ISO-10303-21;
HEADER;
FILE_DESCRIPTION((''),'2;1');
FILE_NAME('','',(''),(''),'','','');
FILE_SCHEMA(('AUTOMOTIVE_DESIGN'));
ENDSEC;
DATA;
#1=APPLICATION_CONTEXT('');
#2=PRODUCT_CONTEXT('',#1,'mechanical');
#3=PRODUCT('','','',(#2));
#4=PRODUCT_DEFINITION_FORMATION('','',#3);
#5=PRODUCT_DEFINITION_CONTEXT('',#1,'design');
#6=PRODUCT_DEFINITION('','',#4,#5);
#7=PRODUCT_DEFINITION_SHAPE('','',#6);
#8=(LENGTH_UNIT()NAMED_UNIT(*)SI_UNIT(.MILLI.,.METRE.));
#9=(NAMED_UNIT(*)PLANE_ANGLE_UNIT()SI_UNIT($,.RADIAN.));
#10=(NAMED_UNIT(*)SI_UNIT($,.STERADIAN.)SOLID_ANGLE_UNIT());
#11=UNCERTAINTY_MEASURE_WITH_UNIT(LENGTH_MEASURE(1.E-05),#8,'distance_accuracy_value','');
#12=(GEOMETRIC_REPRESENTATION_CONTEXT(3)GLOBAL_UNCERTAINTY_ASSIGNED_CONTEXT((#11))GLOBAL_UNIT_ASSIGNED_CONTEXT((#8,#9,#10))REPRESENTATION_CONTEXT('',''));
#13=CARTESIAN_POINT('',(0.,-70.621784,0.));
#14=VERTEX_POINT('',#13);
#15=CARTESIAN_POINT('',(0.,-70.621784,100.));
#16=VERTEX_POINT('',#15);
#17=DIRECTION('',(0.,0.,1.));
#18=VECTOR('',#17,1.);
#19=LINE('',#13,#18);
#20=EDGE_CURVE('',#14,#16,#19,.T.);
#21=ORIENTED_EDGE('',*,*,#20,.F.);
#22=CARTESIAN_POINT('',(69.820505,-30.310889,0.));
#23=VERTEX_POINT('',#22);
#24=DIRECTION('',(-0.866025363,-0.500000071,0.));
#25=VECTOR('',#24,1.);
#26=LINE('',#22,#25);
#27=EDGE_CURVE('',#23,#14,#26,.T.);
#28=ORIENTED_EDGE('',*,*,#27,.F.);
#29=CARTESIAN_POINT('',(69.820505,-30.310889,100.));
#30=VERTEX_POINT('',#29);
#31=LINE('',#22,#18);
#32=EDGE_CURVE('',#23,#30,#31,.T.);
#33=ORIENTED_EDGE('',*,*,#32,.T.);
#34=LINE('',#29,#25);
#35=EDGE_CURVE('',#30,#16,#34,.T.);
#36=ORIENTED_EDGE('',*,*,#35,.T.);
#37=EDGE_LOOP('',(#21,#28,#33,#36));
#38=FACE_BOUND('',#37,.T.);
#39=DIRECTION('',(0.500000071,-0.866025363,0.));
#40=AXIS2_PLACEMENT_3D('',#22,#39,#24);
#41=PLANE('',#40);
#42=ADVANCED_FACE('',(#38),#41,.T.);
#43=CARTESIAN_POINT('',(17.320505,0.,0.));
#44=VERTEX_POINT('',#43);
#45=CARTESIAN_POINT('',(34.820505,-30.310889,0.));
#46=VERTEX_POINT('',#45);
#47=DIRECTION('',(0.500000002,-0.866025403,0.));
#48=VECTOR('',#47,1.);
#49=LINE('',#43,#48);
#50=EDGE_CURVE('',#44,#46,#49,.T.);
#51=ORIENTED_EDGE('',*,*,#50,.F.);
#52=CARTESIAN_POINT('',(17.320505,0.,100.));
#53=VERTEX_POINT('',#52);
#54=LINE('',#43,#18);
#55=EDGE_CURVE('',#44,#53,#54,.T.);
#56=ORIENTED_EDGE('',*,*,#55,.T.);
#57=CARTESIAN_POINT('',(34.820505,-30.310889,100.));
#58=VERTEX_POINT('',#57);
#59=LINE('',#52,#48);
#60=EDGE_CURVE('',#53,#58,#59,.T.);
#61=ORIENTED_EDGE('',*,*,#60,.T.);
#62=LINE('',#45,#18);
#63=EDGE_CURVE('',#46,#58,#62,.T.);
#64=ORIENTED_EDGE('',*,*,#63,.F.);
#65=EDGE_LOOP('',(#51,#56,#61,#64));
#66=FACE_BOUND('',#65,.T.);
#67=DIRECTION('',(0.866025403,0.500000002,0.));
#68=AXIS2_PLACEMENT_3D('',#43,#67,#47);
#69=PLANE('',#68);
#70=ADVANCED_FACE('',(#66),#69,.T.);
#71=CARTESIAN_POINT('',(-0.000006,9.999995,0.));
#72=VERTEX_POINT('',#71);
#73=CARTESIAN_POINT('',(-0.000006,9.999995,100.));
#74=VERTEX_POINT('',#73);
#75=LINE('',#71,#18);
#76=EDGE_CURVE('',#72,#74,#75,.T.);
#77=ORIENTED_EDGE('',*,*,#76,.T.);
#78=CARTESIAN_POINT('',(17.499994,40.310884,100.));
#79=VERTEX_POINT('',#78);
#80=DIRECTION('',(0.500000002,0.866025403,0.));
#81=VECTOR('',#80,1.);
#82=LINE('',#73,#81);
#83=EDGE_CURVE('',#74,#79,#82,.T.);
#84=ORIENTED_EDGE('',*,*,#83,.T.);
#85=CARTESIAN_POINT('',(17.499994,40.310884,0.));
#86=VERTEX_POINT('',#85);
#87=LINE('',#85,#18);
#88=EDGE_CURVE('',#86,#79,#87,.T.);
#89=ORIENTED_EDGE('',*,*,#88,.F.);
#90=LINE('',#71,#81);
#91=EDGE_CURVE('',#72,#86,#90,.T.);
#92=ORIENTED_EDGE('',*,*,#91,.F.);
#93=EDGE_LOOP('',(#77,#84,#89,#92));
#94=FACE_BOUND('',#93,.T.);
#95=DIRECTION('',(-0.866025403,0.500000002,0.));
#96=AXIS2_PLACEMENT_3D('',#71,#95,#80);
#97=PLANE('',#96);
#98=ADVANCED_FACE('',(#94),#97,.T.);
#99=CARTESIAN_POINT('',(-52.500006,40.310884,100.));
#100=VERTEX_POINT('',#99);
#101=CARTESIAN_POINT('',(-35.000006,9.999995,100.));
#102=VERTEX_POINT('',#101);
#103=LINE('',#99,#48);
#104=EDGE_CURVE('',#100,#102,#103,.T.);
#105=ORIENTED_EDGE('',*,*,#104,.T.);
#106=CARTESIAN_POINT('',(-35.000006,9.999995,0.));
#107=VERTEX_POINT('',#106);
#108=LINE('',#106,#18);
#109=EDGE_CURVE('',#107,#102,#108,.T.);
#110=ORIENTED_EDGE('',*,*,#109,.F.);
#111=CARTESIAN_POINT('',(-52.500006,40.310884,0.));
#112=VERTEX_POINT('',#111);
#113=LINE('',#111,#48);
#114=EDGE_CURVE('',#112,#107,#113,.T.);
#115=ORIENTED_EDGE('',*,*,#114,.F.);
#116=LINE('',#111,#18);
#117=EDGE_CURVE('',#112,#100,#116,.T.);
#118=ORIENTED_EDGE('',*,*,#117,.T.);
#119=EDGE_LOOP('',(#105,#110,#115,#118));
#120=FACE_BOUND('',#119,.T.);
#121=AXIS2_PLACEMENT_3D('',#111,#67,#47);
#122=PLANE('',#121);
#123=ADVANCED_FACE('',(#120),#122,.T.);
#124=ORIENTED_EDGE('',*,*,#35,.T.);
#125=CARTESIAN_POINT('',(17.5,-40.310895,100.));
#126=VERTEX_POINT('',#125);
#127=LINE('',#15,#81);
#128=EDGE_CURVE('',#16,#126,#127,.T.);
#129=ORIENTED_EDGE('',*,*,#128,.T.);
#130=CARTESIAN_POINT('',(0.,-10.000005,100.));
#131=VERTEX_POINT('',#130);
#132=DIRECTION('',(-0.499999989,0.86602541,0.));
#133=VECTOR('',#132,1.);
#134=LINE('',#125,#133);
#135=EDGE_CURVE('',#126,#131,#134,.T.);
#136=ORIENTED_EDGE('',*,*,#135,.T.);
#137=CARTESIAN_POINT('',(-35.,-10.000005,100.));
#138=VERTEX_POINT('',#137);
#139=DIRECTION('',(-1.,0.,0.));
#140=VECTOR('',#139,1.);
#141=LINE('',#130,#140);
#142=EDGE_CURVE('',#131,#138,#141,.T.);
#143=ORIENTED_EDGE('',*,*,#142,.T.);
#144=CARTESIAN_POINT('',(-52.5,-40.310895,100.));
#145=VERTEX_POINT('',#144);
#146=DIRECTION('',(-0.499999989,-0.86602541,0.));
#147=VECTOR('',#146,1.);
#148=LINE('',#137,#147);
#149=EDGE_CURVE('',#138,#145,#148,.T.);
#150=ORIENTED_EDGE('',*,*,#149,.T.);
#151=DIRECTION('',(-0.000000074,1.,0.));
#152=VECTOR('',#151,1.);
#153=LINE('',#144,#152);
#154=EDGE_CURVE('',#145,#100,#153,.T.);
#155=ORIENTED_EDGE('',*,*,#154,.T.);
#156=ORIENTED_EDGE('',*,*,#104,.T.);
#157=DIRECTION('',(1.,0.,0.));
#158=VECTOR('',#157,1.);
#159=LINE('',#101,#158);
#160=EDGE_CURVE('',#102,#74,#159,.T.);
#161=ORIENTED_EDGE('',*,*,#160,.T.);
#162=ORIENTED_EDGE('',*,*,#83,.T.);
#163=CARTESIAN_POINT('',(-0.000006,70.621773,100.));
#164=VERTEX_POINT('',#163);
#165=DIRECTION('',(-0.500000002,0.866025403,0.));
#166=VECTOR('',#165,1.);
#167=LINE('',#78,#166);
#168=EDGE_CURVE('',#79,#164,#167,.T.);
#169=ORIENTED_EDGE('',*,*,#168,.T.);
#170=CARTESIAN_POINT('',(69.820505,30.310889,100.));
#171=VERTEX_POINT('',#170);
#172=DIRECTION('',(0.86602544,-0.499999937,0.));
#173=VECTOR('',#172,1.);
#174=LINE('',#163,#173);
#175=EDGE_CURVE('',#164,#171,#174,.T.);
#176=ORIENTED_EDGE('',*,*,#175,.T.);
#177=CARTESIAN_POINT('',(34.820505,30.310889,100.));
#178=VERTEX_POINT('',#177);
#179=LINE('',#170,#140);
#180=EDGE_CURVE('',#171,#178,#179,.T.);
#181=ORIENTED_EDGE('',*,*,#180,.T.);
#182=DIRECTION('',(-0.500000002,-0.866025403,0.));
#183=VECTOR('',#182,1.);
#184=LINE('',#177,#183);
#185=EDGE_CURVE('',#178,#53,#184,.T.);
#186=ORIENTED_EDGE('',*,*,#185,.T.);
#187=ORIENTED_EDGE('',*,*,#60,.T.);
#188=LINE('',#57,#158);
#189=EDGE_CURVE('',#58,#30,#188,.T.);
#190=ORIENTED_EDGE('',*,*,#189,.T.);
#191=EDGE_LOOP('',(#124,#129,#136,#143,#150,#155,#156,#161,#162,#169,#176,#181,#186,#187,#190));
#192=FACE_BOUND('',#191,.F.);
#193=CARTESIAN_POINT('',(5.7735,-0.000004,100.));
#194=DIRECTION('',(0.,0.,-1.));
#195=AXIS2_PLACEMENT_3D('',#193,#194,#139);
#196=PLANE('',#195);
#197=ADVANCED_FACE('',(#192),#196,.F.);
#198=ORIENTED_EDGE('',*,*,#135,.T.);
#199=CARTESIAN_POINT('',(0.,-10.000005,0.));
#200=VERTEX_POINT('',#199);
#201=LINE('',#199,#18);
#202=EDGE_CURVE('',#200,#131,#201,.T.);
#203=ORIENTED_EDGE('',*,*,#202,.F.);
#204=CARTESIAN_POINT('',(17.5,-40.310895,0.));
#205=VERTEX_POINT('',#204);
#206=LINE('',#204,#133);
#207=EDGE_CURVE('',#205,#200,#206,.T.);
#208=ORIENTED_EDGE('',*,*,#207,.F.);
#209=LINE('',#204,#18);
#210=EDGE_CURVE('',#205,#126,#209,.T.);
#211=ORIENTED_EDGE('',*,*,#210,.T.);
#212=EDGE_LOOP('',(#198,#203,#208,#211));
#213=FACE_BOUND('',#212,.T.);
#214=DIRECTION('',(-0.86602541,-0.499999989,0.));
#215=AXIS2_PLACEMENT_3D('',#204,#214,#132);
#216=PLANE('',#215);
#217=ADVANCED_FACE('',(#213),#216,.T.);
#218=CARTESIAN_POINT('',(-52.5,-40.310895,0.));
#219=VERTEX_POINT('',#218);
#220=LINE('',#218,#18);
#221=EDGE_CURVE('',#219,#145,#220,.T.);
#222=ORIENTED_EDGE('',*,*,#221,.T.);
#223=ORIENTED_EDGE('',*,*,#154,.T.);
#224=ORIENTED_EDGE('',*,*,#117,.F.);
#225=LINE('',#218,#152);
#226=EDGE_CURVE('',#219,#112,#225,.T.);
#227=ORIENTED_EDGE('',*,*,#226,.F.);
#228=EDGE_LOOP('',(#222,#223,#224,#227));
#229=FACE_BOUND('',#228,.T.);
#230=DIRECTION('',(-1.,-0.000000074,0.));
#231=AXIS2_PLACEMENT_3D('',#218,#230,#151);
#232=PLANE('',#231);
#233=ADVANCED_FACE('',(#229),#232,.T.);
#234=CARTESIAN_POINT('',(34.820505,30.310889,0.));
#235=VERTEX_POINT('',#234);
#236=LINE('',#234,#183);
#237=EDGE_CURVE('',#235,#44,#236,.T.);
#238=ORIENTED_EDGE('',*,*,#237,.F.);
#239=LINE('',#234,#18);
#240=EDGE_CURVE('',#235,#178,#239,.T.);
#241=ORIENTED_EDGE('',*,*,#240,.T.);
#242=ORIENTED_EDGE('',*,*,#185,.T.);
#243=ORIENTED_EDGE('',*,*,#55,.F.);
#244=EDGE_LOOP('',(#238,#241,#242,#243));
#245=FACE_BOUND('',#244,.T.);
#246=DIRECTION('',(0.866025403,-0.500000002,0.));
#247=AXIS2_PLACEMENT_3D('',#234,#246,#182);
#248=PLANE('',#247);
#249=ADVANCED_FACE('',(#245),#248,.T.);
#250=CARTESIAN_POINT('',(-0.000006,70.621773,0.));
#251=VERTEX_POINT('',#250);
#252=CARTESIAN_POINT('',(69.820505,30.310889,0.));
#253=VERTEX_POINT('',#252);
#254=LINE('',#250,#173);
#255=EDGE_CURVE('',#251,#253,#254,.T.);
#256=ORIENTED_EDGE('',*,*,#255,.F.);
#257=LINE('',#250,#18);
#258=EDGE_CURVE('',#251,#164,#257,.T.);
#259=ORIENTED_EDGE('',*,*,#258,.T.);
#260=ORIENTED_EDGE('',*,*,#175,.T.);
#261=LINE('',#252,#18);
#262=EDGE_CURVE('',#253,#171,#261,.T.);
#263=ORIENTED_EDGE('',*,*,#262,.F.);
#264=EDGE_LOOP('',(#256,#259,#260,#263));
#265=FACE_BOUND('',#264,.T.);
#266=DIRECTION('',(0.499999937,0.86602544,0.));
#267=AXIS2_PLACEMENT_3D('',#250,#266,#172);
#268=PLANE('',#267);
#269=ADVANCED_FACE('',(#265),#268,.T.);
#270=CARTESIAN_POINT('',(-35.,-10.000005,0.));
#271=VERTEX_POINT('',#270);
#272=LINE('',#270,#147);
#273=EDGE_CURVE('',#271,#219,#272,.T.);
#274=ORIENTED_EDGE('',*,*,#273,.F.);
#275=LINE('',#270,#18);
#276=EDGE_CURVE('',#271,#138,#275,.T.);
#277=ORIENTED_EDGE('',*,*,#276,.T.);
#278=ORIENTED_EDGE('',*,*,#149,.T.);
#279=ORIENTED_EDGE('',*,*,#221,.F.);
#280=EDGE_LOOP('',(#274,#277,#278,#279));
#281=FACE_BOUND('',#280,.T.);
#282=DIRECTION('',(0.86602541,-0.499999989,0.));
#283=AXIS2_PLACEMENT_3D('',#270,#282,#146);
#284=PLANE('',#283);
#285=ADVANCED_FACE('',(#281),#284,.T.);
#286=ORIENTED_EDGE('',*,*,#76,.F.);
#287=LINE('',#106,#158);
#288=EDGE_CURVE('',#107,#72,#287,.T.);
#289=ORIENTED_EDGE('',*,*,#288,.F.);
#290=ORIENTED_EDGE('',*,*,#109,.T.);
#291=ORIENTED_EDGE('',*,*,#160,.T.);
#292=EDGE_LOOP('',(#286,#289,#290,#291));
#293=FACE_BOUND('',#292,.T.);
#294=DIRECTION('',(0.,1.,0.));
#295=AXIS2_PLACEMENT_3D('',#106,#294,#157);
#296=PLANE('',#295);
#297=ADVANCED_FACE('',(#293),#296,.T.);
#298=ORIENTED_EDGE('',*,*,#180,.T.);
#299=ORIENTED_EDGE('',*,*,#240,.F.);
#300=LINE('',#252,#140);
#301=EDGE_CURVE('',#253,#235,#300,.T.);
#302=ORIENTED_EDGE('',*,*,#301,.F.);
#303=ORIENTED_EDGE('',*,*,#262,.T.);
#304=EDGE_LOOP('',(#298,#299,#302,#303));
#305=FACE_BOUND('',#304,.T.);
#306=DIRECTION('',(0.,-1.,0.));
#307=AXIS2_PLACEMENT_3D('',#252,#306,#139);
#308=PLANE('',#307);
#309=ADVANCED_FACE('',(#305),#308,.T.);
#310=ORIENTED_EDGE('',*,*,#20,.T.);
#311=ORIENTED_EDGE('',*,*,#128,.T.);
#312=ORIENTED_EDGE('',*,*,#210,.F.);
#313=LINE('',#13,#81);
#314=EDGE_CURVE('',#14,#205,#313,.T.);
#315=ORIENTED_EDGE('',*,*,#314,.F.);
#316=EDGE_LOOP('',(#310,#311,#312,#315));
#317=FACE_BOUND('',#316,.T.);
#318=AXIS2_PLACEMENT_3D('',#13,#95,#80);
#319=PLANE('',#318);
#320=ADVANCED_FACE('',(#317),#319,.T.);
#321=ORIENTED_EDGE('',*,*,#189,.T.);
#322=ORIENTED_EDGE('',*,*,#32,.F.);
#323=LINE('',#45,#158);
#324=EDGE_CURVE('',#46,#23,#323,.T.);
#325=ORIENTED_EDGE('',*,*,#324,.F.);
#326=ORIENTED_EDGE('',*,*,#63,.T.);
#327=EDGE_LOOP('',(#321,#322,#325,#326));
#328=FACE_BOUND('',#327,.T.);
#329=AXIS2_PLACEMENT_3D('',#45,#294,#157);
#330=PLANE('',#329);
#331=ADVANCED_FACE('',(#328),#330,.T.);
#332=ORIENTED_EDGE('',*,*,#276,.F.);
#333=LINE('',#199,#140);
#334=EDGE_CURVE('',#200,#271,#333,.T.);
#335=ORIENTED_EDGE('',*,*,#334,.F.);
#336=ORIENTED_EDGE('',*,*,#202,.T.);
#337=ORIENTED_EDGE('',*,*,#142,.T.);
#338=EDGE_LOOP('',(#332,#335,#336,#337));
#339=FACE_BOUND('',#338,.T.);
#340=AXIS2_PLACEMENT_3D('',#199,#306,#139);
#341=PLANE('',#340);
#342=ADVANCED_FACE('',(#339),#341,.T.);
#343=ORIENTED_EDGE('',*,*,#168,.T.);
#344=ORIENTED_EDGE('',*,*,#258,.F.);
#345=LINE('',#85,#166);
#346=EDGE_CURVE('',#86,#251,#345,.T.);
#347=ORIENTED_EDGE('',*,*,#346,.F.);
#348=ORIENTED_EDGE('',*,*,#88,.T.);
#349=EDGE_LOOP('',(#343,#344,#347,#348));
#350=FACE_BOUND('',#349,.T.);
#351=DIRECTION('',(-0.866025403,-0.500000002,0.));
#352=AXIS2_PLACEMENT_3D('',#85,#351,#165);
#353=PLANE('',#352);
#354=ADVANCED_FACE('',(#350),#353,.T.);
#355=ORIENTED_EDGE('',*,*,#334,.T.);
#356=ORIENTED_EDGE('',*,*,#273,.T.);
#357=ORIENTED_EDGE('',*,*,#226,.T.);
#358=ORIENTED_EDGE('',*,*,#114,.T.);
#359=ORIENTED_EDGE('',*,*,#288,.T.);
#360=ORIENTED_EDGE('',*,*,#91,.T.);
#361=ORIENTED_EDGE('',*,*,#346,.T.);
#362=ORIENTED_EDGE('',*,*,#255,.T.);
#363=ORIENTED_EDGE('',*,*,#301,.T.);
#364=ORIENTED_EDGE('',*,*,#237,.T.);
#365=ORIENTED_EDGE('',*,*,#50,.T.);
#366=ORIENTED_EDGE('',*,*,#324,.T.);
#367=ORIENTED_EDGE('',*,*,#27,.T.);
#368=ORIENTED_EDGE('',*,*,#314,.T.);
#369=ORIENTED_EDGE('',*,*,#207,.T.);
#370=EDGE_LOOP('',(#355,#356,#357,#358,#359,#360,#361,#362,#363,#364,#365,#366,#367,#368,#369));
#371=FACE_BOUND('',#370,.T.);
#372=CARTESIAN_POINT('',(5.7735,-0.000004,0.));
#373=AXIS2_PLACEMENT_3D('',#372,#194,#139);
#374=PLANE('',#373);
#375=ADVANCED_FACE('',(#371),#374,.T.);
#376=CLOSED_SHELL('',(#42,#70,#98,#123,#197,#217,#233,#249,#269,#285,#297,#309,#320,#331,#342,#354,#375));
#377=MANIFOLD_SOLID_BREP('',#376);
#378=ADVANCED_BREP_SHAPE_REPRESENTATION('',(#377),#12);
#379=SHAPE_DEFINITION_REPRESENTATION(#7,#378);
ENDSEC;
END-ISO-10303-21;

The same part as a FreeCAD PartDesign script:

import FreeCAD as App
import Part
import Sketcher
from FreeCAD import Vector
Q = App.Units.Quantity


def add_polygon(sketch, points):
    """Adds a closed chain of lines whose ends are joined by coincident constraints."""
    first, n = sketch.GeometryCount, len(points)
    for a, b in zip(points, points[1:] + points[:1]):
        sketch.addGeometry(Part.LineSegment(App.Vector(*a, 0), App.Vector(*b, 0)), False)
    for i in range(n):
        sketch.addConstraint(Sketcher.Constraint("Coincident", first + i, 2, first + (i + 1) % n, 1))

doc = App.newDocument("Part")
params = doc.addObject("Spreadsheet::Sheet", "Params")
for row, (alias, value) in enumerate([
    ("sketch1_width", "35 mm"),
    ("sketch1_length", "35.000001 mm"),
    ("pad1_length", "100 mm"),
], start=1):
    params.set(f"A{row}", alias)
    params.set(f"B{row}", "=" + value)
    params.setAlias(f"B{row}", alias)

body = doc.addObject("PartDesign::Body", "Body")

# Sketch on XY plane
sketch1 = body.newObject("Sketcher::SketchObject", "Sketch")
sketch1.AttachmentSupport = (doc.getObject("XY_Plane"), [""])
sketch1.MapMode = "FlatFace"
add_polygon(sketch1, [(0, -10.000005), (17.5, -40.310895), (0, -70.621784), (69.820505, -30.310889), (34.820505, -30.310889), (17.320505, 0), (34.820505, 30.310889), (69.820505, 30.310889), (-0.000006, 70.621773), (17.499994, 40.310884), (-0.000006, 9.999995), (-35.000006, 9.999995), (-52.500006, 40.310884), (-52.5, -40.310895), (-35, -10.000005)])  # lines 0-14
sketch1.addConstraint([
    Sketcher.Constraint("Horizontal", 3),
    Sketcher.Constraint("Horizontal", 6),
    Sketcher.Constraint("Horizontal", 10),
    Sketcher.Constraint("Horizontal", 14),
    Sketcher.Constraint("Symmetric", 3, 2, 5, 2, -1),
    Sketcher.Constraint("PointOnObject", 1, 2, -2),
    Sketcher.Constraint("PointOnObject", 4, 2, -1),
    Sketcher.Constraint("PointOnObject", 14, 2, -2),
    Sketcher.Constraint("Perpendicular", 0, 2),
    Sketcher.Constraint("Perpendicular", 2, 4),
    Sketcher.Constraint("Parallel", 1, 5),
    Sketcher.Constraint("Perpendicular", 5, 7),
    Sketcher.Constraint("Parallel", 4, 8),
    Sketcher.Constraint("Perpendicular", 7, 9),
    Sketcher.Constraint("Parallel", 8, 11),
    Sketcher.Constraint("Parallel", 9, 13),
    Sketcher.Constraint("Horizontal", 8, 2, 11, 2),
    Sketcher.Constraint("Horizontal", 0, 2, 12, 2),
    Sketcher.Constraint("Vertical", 2, 2, 6, 2),
    Sketcher.Constraint("Vertical", 7, 2, 9, 2),
    Sketcher.Constraint("Equal", 6, 10),
    Sketcher.Constraint("Equal", 10, 14),
    Sketcher.Constraint("Equal", 1, 4),
    Sketcher.Constraint("Equal", 2, 7),
    Sketcher.Constraint("Equal", 5, 8),
    Sketcher.Constraint("Equal", 7, 12),
    Sketcher.Constraint("DistanceX", 3, 2, 3, 1, Q("35 mm")),
    Sketcher.Constraint("Distance", 0, Q("35.000001 mm")),
    Sketcher.Constraint("DistanceY", 13, 2, 10, 2, Q("20 mm")),
])
sketch1.setExpression("Constraints[41]", "Params.sketch1_width")
sketch1.setExpression("Constraints[42]", "Params.sketch1_length")
pad1 = body.newObject("PartDesign::Pad", "Pad")
pad1.Profile = sketch1
pad1.setExpression("Length", "Params.pad1_length")

doc.recompute()
